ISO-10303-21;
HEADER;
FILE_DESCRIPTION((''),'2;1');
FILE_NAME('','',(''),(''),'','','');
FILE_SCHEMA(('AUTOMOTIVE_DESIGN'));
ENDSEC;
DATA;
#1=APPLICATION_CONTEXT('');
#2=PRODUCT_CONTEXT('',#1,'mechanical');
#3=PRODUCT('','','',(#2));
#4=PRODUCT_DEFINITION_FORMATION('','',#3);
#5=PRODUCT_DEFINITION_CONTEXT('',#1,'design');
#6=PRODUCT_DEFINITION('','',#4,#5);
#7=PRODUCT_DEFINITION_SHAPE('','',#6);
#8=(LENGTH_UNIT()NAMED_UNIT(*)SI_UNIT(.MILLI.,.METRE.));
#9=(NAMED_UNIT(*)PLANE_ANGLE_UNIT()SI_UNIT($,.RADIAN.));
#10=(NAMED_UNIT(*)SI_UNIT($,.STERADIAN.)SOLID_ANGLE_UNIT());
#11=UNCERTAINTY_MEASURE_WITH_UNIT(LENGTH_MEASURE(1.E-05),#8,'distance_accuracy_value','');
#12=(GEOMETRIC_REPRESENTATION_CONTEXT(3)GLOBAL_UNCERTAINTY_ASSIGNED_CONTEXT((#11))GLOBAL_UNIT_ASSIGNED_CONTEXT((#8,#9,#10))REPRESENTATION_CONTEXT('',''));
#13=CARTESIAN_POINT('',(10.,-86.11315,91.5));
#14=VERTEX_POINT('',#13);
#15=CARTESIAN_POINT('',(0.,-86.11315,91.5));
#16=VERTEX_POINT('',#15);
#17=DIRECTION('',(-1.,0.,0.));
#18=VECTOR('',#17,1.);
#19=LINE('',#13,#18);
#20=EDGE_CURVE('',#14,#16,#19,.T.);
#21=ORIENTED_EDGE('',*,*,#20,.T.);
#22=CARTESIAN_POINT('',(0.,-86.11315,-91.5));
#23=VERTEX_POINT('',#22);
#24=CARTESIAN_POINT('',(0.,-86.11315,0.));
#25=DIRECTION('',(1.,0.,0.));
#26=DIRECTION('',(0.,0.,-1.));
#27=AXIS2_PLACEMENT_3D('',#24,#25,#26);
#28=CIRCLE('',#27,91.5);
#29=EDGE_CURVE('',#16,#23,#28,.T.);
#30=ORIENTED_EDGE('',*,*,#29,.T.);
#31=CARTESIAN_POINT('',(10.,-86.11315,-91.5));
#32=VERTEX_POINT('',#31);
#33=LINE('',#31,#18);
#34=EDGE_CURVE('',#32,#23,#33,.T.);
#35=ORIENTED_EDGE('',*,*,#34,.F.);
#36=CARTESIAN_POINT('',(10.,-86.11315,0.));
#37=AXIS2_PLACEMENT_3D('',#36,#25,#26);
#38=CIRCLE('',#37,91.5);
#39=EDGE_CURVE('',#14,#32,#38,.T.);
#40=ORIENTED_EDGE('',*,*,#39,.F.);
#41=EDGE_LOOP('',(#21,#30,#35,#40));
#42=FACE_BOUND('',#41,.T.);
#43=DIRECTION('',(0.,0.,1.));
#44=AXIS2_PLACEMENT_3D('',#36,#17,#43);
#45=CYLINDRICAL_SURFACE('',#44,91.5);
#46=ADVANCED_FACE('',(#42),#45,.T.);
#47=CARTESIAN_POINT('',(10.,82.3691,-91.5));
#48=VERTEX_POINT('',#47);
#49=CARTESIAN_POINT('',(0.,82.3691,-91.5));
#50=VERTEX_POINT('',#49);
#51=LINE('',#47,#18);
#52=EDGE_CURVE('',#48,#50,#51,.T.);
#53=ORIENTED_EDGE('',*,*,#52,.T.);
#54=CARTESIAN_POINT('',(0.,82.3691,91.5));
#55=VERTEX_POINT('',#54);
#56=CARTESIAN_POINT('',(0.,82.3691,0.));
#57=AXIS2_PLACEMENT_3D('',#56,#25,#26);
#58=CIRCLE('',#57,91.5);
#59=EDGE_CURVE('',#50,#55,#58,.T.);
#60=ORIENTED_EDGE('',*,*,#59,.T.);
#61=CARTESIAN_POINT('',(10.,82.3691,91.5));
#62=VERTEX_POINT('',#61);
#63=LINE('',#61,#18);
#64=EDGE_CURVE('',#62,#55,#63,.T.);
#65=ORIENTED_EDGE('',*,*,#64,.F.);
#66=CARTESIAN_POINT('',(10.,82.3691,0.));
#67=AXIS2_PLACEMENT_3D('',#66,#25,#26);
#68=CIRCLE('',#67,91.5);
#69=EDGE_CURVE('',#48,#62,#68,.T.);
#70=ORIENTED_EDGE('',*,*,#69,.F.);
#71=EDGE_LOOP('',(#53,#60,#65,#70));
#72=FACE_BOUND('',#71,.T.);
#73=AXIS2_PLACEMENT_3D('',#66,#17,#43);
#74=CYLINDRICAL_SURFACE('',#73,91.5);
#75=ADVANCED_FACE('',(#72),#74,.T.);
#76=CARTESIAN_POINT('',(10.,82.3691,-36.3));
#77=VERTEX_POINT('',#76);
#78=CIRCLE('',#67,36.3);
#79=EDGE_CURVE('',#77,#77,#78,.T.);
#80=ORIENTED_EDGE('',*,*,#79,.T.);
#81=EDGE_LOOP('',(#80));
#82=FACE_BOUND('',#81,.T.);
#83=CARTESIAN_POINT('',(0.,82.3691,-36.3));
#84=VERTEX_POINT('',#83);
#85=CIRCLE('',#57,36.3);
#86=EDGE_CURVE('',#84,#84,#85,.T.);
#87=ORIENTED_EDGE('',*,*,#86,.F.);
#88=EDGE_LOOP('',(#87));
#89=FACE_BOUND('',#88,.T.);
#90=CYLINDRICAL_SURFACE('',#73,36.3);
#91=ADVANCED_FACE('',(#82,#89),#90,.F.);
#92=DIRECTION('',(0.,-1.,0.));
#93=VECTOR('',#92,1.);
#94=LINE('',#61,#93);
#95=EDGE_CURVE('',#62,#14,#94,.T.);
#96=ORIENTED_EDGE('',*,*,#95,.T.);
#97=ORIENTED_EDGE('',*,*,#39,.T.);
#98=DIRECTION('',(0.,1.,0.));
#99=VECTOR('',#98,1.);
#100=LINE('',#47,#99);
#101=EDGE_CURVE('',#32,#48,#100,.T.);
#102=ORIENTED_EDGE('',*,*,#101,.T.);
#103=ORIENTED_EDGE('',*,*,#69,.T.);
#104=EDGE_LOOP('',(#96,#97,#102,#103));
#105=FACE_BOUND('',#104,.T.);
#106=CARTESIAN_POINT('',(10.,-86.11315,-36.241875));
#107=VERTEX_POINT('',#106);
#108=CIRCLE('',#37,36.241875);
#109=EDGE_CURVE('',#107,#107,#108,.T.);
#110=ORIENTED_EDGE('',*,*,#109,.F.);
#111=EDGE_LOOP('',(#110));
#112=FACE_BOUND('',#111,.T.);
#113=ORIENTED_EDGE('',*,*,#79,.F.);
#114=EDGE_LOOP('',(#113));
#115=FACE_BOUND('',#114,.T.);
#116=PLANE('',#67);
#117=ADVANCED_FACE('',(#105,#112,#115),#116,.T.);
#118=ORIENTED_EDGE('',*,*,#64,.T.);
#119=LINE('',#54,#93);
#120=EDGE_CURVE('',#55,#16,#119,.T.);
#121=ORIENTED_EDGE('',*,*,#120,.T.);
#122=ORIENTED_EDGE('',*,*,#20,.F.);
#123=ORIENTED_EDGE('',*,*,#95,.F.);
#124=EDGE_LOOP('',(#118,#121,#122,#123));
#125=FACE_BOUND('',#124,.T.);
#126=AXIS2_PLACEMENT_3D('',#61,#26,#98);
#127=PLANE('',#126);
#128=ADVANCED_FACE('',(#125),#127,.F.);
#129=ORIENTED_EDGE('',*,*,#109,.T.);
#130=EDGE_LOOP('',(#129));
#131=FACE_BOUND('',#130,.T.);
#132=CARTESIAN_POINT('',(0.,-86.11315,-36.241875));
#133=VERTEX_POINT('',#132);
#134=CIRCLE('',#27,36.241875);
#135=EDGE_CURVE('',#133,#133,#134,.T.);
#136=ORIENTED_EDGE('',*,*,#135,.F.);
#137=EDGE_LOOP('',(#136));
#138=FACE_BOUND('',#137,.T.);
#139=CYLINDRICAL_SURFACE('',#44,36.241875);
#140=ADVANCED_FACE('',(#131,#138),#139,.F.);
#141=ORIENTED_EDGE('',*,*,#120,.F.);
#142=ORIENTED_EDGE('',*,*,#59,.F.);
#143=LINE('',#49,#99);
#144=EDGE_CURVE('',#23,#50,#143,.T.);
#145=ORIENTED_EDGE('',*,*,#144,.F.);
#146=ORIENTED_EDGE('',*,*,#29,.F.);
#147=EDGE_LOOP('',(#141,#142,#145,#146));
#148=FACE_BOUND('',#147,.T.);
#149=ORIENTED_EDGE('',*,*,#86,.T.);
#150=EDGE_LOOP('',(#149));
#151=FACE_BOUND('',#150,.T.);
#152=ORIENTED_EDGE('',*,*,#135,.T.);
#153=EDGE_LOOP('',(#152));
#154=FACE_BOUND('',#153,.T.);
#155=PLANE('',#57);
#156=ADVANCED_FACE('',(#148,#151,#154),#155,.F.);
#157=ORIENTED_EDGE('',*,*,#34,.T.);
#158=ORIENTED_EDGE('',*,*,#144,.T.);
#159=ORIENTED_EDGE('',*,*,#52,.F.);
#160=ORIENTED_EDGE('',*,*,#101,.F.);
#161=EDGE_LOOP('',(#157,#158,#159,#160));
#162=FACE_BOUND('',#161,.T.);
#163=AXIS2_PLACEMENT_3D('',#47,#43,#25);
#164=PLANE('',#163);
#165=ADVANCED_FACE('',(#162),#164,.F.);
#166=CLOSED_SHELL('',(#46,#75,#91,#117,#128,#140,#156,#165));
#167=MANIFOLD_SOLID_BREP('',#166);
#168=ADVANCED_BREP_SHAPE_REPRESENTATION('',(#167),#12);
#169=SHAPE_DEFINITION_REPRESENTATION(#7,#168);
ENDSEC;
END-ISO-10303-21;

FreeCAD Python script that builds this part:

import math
import FreeCAD as App
import Part
import Sketcher

V = App.Vector
Q = App.Units.Quantity

doc = App.newDocument("Part")
body = doc.addObject("PartDesign::Body", "Body")

# Sketch on YZ plane
sketch1 = body.newObject("Sketcher::SketchObject", "Sketch")
sketch1.AttachmentSupport = (doc.getObject("YZ_Plane"), [""])
sketch1.MapMode = "FlatFace"
sketch1.addGeometry(Part.LineSegment(V(-86.11315, -91.5, 0), V(82.3691, -91.5, 0)), False)
sketch1.addGeometry(Part.ArcOfCircle(Part.Circle(V(82.3691, 0, 0), V(0, 0, 1), 91.5), math.radians(-90), math.radians(90)), False)
sketch1.addGeometry(Part.LineSegment(V(82.3691, 91.5, 0), V(-86.11315, 91.5, 0)), False)
sketch1.addGeometry(Part.ArcOfCircle(Part.Circle(V(-86.11315, 0, 0), V(0, 0, 1), 91.5), math.radians(90), math.radians(270)), False)
sketch1.addGeometry(Part.Circle(V(-86.11315, 0, 0), V(0, 0, 1), 36.241875), False)
sketch1.addGeometry(Part.Circle(V(82.3691, 0, 0), V(0, 0, 1), 36.3), False)
sketch1.addConstraint(Sketcher.Constraint("Tangent", 0, 2, 1, 1))
sketch1.addConstraint(Sketcher.Constraint("Tangent", 1, 2, 2, 1))
sketch1.addConstraint(Sketcher.Constraint("Tangent", 2, 2, 3, 1))
sketch1.addConstraint(Sketcher.Constraint("Tangent", 3, 2, 0, 1))
sketch1.addConstraint(Sketcher.Constraint("Horizontal", 0))
sketch1.addConstraint(Sketcher.Constraint("Horizontal", 2))
sketch1.addConstraint(Sketcher.Constraint("Coincident", 4, 3, 3, 3))
sketch1.addConstraint(Sketcher.Constraint("Coincident", 5, 3, 1, 3))
sketch1.addConstraint(Sketcher.Constraint("PointOnObject", 1, 3, -1))
sketch1.addConstraint(Sketcher.Constraint("Diameter", 5, Q("72.6 mm")))
sketch1.addConstraint(Sketcher.Constraint("Radius", 1, Q("91.5 mm")))
sketch1.addConstraint(Sketcher.Constraint("Diameter", 4, Q("72.48375 mm")))
sketch1.addConstraint(Sketcher.Constraint("DistanceX", 0, 1, 0, 2, Q("168.48225 mm")))
sketch1.addConstraint(Sketcher.Constraint("DistanceX", -1, 1, 1, 3, Q("82.3691 mm")))
pad1 = body.newObject("PartDesign::Pad", "Pad")
pad1.Profile = sketch1
pad1.Length = 10

doc.recompute()
